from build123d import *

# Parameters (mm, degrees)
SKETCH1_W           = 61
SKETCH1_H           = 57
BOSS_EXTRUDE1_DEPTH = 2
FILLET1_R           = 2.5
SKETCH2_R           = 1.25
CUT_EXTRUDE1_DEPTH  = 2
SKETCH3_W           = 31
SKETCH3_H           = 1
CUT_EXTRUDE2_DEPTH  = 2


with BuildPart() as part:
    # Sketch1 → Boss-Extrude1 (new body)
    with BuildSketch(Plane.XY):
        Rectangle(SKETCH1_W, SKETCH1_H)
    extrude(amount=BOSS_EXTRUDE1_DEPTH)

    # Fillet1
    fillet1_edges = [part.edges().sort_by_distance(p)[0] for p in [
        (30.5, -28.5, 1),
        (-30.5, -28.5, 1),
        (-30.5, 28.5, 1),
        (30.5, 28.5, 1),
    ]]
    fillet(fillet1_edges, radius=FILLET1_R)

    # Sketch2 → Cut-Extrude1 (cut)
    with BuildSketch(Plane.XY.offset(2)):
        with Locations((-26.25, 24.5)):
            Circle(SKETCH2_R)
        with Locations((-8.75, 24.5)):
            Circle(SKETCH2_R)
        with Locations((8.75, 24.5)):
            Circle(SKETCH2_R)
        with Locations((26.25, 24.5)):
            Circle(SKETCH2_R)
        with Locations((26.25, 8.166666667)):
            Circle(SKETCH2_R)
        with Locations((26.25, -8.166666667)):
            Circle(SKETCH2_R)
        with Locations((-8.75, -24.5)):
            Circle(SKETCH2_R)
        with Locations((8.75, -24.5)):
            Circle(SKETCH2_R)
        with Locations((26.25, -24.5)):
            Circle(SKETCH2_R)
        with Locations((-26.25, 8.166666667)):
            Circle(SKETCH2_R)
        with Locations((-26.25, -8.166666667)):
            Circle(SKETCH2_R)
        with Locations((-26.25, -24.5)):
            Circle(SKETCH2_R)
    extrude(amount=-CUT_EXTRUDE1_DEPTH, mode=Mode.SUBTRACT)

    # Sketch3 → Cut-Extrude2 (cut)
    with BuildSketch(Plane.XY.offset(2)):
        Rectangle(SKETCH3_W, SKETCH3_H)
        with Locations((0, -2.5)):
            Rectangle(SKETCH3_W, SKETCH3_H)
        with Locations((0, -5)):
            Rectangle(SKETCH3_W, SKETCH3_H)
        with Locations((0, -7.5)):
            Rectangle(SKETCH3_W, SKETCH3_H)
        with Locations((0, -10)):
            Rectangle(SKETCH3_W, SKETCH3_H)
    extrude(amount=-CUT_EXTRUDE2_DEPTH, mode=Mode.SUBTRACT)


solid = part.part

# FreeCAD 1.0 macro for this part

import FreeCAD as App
import Part
import Sketcher
from FreeCAD import Vector


def edges_at(feature, points):
    """Names of the edges that pass closest to the given points."""
    edges = feature.Shape.Edges
    near = lambda p: min(range(len(edges)), key=lambda i: edges[i].distToShape(Part.Vertex(*p))[0])
    return sorted({f"Edge{near(p) + 1}" for p in points})


def add_polygon(sketch, points):
    """Adds a closed chain of lines whose ends are joined by coincident constraints."""
    first, n = sketch.GeometryCount, len(points)
    for a, b in zip(points, points[1:] + points[:1]):
        sketch.addGeometry(Part.LineSegment(App.Vector(*a, 0), App.Vector(*b, 0)), False)
    for i in range(n):
        sketch.addConstraint(Sketcher.Constraint("Coincident", first + i, 2, first + (i + 1) % n, 1))

doc = App.newDocument("Part")
params = doc.addObject("Spreadsheet::Sheet", "Params")
for row, (alias, value) in enumerate([
    ("sketch1_width", "61 mm"),
    ("sketch1_height", "57 mm"),
    ("pad1_length", "2 mm"),
    ("fillet_radius", "2.5 mm"),
    ("sketch2_diameter", "2.5 mm"),
    ("pocket1_length", "2 mm"),
    ("sketch3_width", "31 mm"),
    ("sketch3_height", "1 mm"),
    ("pocket2_length", "2 mm"),
], start=1):
    params.set(f"A{row}", alias)
    params.set(f"B{row}", "=" + value)
    params.setAlias(f"B{row}", alias)

body = doc.addObject("PartDesign::Body", "Body")

sketch1 = body.newObject("Sketcher::SketchObject", "Sketch")
sketch1.AttachmentSupport = (doc.getObject("XY_Plane"), [""])
sketch1.MapMode = "FlatFace"
add_polygon(sketch1, [(-30.5, 28.5), (-30.5, -28.5), (30.5, -28.5), (30.5, 28.5)])
sketch1.addConstraint([
    Sketcher.Constraint("Vertical", 0),
    Sketcher.Constraint("Horizontal", 1),
    Sketcher.Constraint("Vertical", 2),
    Sketcher.Constraint("Horizontal", 3),
    Sketcher.Constraint("Symmetric", 0, 2, 2, 2, -1, 1),
    Sketcher.Constraint("DistanceX", 1, 1, 1, 2, 61.0),
    Sketcher.Constraint("DistanceY", 0, 2, 0, 1, 57.0),
])
sketch1.setExpression("Constraints[9]", "Params.sketch1_width")
sketch1.setExpression("Constraints[10]", "Params.sketch1_height")
pad1 = body.newObject("PartDesign::Pad", "Pad")
pad1.Profile = sketch1
pad1.setExpression("Length", "Params.pad1_length")
doc.recompute()

fillet = body.newObject("PartDesign::Fillet", "Fillet")
fillet.Base = (pad1, edges_at(pad1, [
    (30.5, -28.5, 1),
    (-30.5, -28.5, 1),
    (-30.5, 28.5, 1),
    (30.5, 28.5, 1),
]))
fillet.setExpression("Radius", "Params.fillet_radius")

sketch2 = body.newObject("Sketcher::SketchObject", "Sketch001")
sketch2.AttachmentSupport = (doc.getObject("XY_Plane"), [""])
sketch2.MapMode = "FlatFace"
sketch2.AttachmentOffset = App.Placement(Vector(0, 0, 2), App.Rotation())
sketch2.addGeometry([
    Part.Circle(Vector(-26.25, 24.5, 0), Vector(0, 0, 1), 1.25),
    Part.Circle(Vector(-8.75, 24.5, 0), Vector(0, 0, 1), 1.25),
    Part.Circle(Vector(8.75, 24.5, 0), Vector(0, 0, 1), 1.25),
    Part.Circle(Vector(26.25, 24.5, 0), Vector(0, 0, 1), 1.25),
    Part.Circle(Vector(26.25, 8.166667, 0), Vector(0, 0, 1), 1.25),
    Part.Circle(Vector(26.25, -8.166667, 0), Vector(0, 0, 1), 1.25),
    Part.Circle(Vector(-8.75, -24.5, 0), Vector(0, 0, 1), 1.25),
    Part.Circle(Vector(8.75, -24.5, 0), Vector(0, 0, 1), 1.25),
    Part.Circle(Vector(26.25, -24.5, 0), Vector(0, 0, 1), 1.25),
    Part.Circle(Vector(-26.25, 8.166667, 0), Vector(0, 0, 1), 1.25),
    Part.Circle(Vector(-26.25, -8.166667, 0), Vector(0, 0, 1), 1.25),
    Part.Circle(Vector(-26.25, -24.5, 0), Vector(0, 0, 1), 1.25),
], False)
sketch2.addConstraint([
    Sketcher.Constraint("Equal", 0, 1),
    Sketcher.Constraint("Equal", 1, 2),
    Sketcher.Constraint("Equal", 2, 3),
    Sketcher.Constraint("Equal", 3, 4),
    Sketcher.Constraint("Equal", 4, 5),
    Sketcher.Constraint("Equal", 5, 6),
    Sketcher.Constraint("Equal", 6, 7),
    Sketcher.Constraint("Equal", 7, 8),
    Sketcher.Constraint("Equal", 8, 9),
    Sketcher.Constraint("Equal", 9, 10),
    Sketcher.Constraint("Equal", 10, 11),
    Sketcher.Constraint("Symmetric", 2, 3, 6, 3, -1, 1),
    Sketcher.Constraint("Symmetric", 1, 3, 7, 3, -1, 1),
    Sketcher.Constraint("Symmetric", 0, 3, 8, 3, -1, 1),
    Sketcher.Constraint("Symmetric", 5, 3, 9, 3, -1, 1),
    Sketcher.Constraint("Symmetric", 4, 3, 10, 3, -1, 1),
    Sketcher.Constraint("Symmetric", 3, 3, 11, 3, -1, 1),
    Sketcher.Constraint("Symmetric", 1, 3, 2, 3, -2),
    Sketcher.Constraint("Symmetric", 0, 3, 3, 3, -2),
    Sketcher.Constraint("Symmetric", 4, 3, 9, 3, -2),
    Sketcher.Constraint("Horizontal", 0, 3, 1, 3),
    Sketcher.Constraint("Vertical", 3, 3, 4, 3),
    Sketcher.Constraint("Diameter", 0, 2.5),
    Sketcher.Constraint("DistanceX", 0, 3, 2, 3, 35.0),
    Sketcher.Constraint("DistanceY", 6, 3, 1, 3, 49.0),
    Sketcher.Constraint("DistanceX", 0, 3, 1, 3, 17.5),
    Sketcher.Constraint("DistanceY", -1, 1, 4, 3, 8.166667),
])
sketch2.setExpression("Constraints[22]", "Params.sketch2_diameter")
pocket1 = body.newObject("PartDesign::Pocket", "Pocket")
pocket1.Profile = sketch2
pocket1.setExpression("Length", "Params.pocket1_length")

sketch3 = body.newObject("Sketcher::SketchObject", "Sketch002")
sketch3.AttachmentSupport = (doc.getObject("XY_Plane"), [""])
sketch3.MapMode = "FlatFace"
sketch3.AttachmentOffset = App.Placement(Vector(0, 0, 2), App.Rotation())
add_polygon(sketch3, [(-15.5, 0.5), (-15.5, -0.5), (15.5, -0.5), (15.5, 0.5)])
add_polygon(sketch3, [(-15.5, -2), (-15.5, -3), (15.5, -3), (15.5, -2)])
add_polygon(sketch3, [(-15.5, -4.5), (-15.5, -5.5), (15.5, -5.5), (15.5, -4.5)])
add_polygon(sketch3, [(-15.5, -7), (-15.5, -8), (15.5, -8), (15.5, -7)])
add_polygon(sketch3, [(-15.5, -9.5), (-15.5, -10.5), (15.5, -10.5), (15.5, -9.5)])
sketch3.addConstraint([
    Sketcher.Constraint("Vertical", 0),
    Sketcher.Constraint("Horizontal", 1),
    Sketcher.Constraint("Vertical", 2),
    Sketcher.Constraint("Horizontal", 3),
    Sketcher.Constraint("Vertical", 4),
    Sketcher.Constraint("Horizontal", 5),
    Sketcher.Constraint("Vertical", 6),
    Sketcher.Constraint("Horizontal", 7),
    Sketcher.Constraint("Vertical", 8),
    Sketcher.Constraint("Horizontal", 9),
    Sketcher.Constraint("Vertical", 10),
    Sketcher.Constraint("Horizontal", 11),
    Sketcher.Constraint("Vertical", 12),
    Sketcher.Constraint("Horizontal", 13),
    Sketcher.Constraint("Vertical", 14),
    Sketcher.Constraint("Horizontal", 15),
    Sketcher.Constraint("Vertical", 16),
    Sketcher.Constraint("Horizontal", 17),
    Sketcher.Constraint("Vertical", 18),
    Sketcher.Constraint("Horizontal", 19),
    Sketcher.Constraint("Symmetric", 0, 2, 2, 2, -1, 1),
    Sketcher.Constraint("Vertical", 3, 2, 4, 2),
    Sketcher.Constraint("Vertical", 2, 2, 5, 2),
    Sketcher.Constraint("Vertical", 7, 2, 8, 2),
    Sketcher.Constraint("Vertical", 6, 2, 9, 2),
    Sketcher.Constraint("Vertical", 11, 2, 12, 2),
    Sketcher.Constraint("Vertical", 10, 2, 13, 2),
    Sketcher.Constraint("Vertical", 15, 2, 16, 2),
    Sketcher.Constraint("Vertical", 14, 2, 17, 2),
    Sketcher.Constraint("Equal", 2, 4),
    Sketcher.Constraint("Equal", 6, 8),
    Sketcher.Constraint("Equal", 10, 12),
    Sketcher.Constraint("Equal", 14, 16),
    Sketcher.Constraint("DistanceX", 1, 1, 1, 2, 31.0),
    Sketcher.Constraint("DistanceY", 0, 2, 0, 1, 1.0),
    Sketcher.Constraint("DistanceY", 4, 2, -1, 1, 3.0),
    Sketcher.Constraint("DistanceY", 12, 2, -1, 1, 8.0),
    Sketcher.Constraint("DistanceY", 8, 2, 0, 2, 5.0),
    Sketcher.Constraint("DistanceY", 16, 2, 8, 2, 5.0),
])
sketch3.setExpression("Constraints[53]", "Params.sketch3_width")
sketch3.setExpression("Constraints[54]", "Params.sketch3_height")
pocket2 = body.newObject("PartDesign::Pocket", "Pocket001")
pocket2.Profile = sketch3
pocket2.setExpression("Length", "Params.pocket2_length")

doc.recompute()
